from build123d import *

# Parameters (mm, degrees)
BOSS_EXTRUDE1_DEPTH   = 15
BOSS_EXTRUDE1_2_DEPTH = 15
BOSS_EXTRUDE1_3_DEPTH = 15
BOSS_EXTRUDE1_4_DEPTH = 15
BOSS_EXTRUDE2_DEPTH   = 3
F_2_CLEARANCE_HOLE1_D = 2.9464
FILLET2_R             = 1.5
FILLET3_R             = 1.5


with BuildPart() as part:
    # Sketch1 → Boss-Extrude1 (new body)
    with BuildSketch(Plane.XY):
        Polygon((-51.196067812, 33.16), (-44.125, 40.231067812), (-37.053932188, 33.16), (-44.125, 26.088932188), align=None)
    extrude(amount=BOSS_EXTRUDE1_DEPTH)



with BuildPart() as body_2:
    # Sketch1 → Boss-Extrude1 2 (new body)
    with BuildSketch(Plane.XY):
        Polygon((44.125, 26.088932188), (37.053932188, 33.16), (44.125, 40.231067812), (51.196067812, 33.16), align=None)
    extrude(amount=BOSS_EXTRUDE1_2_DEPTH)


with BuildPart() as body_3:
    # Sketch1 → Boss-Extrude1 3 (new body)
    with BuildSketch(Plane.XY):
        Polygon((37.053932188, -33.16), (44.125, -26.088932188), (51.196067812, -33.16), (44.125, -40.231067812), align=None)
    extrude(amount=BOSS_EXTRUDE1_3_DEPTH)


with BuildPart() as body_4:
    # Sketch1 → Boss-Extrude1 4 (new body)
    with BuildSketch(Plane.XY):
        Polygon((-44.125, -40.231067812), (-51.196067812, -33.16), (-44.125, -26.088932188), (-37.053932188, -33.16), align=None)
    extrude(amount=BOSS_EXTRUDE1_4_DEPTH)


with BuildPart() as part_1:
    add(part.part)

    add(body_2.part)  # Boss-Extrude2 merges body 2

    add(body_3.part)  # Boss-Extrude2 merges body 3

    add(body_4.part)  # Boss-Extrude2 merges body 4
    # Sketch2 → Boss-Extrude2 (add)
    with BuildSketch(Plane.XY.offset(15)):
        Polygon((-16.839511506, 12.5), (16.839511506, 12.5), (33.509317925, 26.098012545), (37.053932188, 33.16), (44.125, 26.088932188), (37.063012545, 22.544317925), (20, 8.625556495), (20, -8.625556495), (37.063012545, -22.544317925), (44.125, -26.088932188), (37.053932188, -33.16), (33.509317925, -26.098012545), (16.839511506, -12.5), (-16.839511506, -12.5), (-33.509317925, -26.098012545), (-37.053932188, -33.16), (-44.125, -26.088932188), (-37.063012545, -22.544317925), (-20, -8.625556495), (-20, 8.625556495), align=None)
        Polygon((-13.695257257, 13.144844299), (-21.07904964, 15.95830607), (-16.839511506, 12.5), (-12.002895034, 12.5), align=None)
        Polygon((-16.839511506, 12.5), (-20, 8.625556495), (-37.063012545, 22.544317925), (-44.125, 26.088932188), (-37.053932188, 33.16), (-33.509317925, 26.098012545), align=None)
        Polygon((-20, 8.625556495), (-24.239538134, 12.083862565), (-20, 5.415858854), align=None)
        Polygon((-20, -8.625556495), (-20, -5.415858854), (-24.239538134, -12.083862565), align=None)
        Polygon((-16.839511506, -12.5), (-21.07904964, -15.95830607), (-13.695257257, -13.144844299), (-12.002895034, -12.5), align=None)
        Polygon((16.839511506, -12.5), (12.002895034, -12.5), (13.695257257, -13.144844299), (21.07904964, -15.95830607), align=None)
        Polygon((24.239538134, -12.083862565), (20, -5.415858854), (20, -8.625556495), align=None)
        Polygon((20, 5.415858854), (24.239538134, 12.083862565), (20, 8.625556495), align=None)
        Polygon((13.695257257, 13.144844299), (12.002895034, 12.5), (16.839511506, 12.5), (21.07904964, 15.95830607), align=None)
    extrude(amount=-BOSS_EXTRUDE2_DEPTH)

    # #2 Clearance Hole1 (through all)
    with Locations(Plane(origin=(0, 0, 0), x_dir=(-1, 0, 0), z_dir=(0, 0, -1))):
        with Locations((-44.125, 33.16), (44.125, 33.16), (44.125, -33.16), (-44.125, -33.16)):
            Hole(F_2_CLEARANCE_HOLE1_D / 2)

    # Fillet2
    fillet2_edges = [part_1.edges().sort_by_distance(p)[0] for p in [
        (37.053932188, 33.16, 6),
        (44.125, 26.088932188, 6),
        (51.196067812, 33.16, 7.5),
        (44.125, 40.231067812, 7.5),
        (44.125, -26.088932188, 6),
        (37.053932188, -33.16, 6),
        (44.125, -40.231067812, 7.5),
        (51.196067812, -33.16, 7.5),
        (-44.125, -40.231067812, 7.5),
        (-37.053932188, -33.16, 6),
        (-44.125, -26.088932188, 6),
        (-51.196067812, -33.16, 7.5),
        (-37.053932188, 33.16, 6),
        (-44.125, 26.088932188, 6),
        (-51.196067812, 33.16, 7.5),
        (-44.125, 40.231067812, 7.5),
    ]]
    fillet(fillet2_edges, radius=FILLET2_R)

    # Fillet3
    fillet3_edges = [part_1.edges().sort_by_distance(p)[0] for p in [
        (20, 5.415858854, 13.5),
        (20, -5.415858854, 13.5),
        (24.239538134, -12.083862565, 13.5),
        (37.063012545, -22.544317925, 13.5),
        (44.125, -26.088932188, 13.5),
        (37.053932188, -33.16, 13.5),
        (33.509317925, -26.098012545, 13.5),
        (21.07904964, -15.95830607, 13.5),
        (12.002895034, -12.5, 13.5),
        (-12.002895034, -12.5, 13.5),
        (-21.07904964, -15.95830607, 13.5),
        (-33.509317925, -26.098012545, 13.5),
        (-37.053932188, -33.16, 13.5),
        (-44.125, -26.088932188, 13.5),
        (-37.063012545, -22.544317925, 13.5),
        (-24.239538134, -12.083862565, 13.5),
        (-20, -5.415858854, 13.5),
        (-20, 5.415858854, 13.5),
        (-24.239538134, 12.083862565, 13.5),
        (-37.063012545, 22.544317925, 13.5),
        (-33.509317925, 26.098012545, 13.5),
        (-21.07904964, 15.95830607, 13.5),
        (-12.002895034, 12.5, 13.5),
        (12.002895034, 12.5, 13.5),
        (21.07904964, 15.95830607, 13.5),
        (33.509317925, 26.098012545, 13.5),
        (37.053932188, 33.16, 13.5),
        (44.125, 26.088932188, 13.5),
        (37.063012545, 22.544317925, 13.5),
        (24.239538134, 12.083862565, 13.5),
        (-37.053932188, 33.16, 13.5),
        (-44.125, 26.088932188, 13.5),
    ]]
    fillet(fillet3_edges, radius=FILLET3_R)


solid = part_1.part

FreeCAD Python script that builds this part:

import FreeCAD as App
import Part
import Sketcher

V = App.Vector


def edges_at(feature, points):
    """Names of the edges that pass closest to the given points."""
    edges = feature.Shape.Edges
    near = lambda p: min(range(len(edges)), key=lambda i: edges[i].distToShape(Part.Vertex(*p))[0])
    return sorted({f"Edge{near(p) + 1}" for p in points})

doc = App.newDocument("Part")
body = doc.addObject("PartDesign::Body", "Body")

# Sketch on XY plane
sketch1 = doc.addObject("Sketcher::SketchObject", "Sketch")
body.addObject(sketch1)
sketch1.AttachmentSupport = (doc.XY_Plane, [""])
sketch1.MapMode = "FlatFace"
sketch1.addGeometry([
    Part.LineSegment(V(-44, 40, 0), V(-51, 33, 0)),
    Part.LineSegment(V(-51, 33, 0), V(-44, 26, 0)),
    Part.LineSegment(V(-44, 26, 0), V(-37, 33, 0)),
    Part.LineSegment(V(-37, 33, 0), V(-44, 40, 0)),
], False)
sketch1.addConstraint([
    Sketcher.Constraint("Coincident", 0, 2, 1, 1),
    Sketcher.Constraint("Coincident", 1, 2, 2, 1),
    Sketcher.Constraint("Coincident", 2, 2, 3, 1),
    Sketcher.Constraint("Coincident", 3, 2, 0, 1),
    Sketcher.Constraint("Perpendicular", 0, 1),
    Sketcher.Constraint("Perpendicular", 1, 2),
    Sketcher.Constraint("Perpendicular", 2, 3),
    Sketcher.Constraint("Horizontal", 0, 2, 2, 2),
    Sketcher.Constraint("Vertical", 1, 2, 3, 2),
    Sketcher.Constraint("Distance", 0, 10.0),
    Sketcher.Constraint("DistanceY", -1, 1, 0, 2, 33.16),
    Sketcher.Constraint("DistanceX", 1, 2, -1, 1, 44.125),
])
pad1 = doc.addObject("PartDesign::Pad", "Pad")
body.addObject(pad1)
pad1.Profile = sketch1
pad1.Length = 15
body2 = doc.addObject("PartDesign::Body", "Body001")

# Sketch on XY plane
sketch2 = doc.addObject("Sketcher::SketchObject", "Sketch001")
body2.addObject(sketch2)
sketch2.AttachmentSupport = (doc.getObject("XY_Plane001"), [""])
sketch2.MapMode = "FlatFace"
sketch2.addGeometry([
    Part.LineSegment(V(37, 33, 0), V(44, 26, 0)),
    Part.LineSegment(V(44, 26, 0), V(51, 33, 0)),
    Part.LineSegment(V(51, 33, 0), V(44, 40, 0)),
    Part.LineSegment(V(44, 40, 0), V(37, 33, 0)),
], False)
sketch2.addConstraint([
    Sketcher.Constraint("Coincident", 0, 2, 1, 1),
    Sketcher.Constraint("Coincident", 1, 2, 2, 1),
    Sketcher.Constraint("Coincident", 2, 2, 3, 1),
    Sketcher.Constraint("Coincident", 3, 2, 0, 1),
    Sketcher.Constraint("Perpendicular", 0, 1),
    Sketcher.Constraint("Perpendicular", 1, 2),
    Sketcher.Constraint("Perpendicular", 2, 3),
    Sketcher.Constraint("Horizontal", 1, 2, 3, 2),
    Sketcher.Constraint("Vertical", 0, 2, 2, 2),
    Sketcher.Constraint("Distance", 0, 10.0),
    Sketcher.Constraint("DistanceY", -1, 1, 1, 2, 33.16),
    Sketcher.Constraint("DistanceX", -1, 1, 0, 2, 44.125),
])
pad2 = doc.addObject("PartDesign::Pad", "Pad001")
body2.addObject(pad2)
pad2.Profile = sketch2
pad2.Length = 15
body3 = doc.addObject("PartDesign::Body", "Body002")

# Sketch on XY plane
sketch3 = doc.addObject("Sketcher::SketchObject", "Sketch002")
body3.addObject(sketch3)
sketch3.AttachmentSupport = (doc.getObject("XY_Plane002"), [""])
sketch3.MapMode = "FlatFace"
sketch3.addGeometry([
    Part.LineSegment(V(44, -26, 0), V(37, -33, 0)),
    Part.LineSegment(V(37, -33, 0), V(44, -40, 0)),
    Part.LineSegment(V(44, -40, 0), V(51, -33, 0)),
    Part.LineSegment(V(51, -33, 0), V(44, -26, 0)),
], False)
sketch3.addConstraint([
    Sketcher.Constraint("Coincident", 0, 2, 1, 1),
    Sketcher.Constraint("Coincident", 1, 2, 2, 1),
    Sketcher.Constraint("Coincident", 2, 2, 3, 1),
    Sketcher.Constraint("Coincident", 3, 2, 0, 1),
    Sketcher.Constraint("Perpendicular", 0, 1),
    Sketcher.Constraint("Perpendicular", 1, 2),
    Sketcher.Constraint("Perpendicular", 2, 3),
    Sketcher.Constraint("Horizontal", 0, 2, 2, 2),
    Sketcher.Constraint("Vertical", 1, 2, 3, 2),
    Sketcher.Constraint("Distance", 0, 10.0),
    Sketcher.Constraint("DistanceY", 0, 2, -1, 1, 33.16),
    Sketcher.Constraint("DistanceX", -1, 1, 1, 2, 44.125),
])
pad3 = doc.addObject("PartDesign::Pad", "Pad002")
body3.addObject(pad3)
pad3.Profile = sketch3
pad3.Length = 15
body4 = doc.addObject("PartDesign::Body", "Body003")

# Sketch on XY plane
sketch4 = doc.addObject("Sketcher::SketchObject", "Sketch003")
body4.addObject(sketch4)
sketch4.AttachmentSupport = (doc.getObject("XY_Plane003"), [""])
sketch4.MapMode = "FlatFace"
sketch4.addGeometry([
    Part.LineSegment(V(-51, -33, 0), V(-44, -40, 0)),
    Part.LineSegment(V(-44, -40, 0), V(-37, -33, 0)),
    Part.LineSegment(V(-37, -33, 0), V(-44, -26, 0)),
    Part.LineSegment(V(-44, -26, 0), V(-51, -33, 0)),
], False)
sketch4.addConstraint([
    Sketcher.Constraint("Coincident", 0, 2, 1, 1),
    Sketcher.Constraint("Coincident", 1, 2, 2, 1),
    Sketcher.Constraint("Coincident", 2, 2, 3, 1),
    Sketcher.Constraint("Coincident", 3, 2, 0, 1),
    Sketcher.Constraint("Perpendicular", 0, 1),
    Sketcher.Constraint("Perpendicular", 1, 2),
    Sketcher.Constraint("Perpendicular", 2, 3),
    Sketcher.Constraint("Horizontal", 1, 2, 3, 2),
    Sketcher.Constraint("Vertical", 0, 2, 2, 2),
    Sketcher.Constraint("Distance", 0, 10.0),
    Sketcher.Constraint("DistanceY", 1, 2, -1, 1, 33.16),
    Sketcher.Constraint("DistanceX", 0, 2, -1, 1, 44.125),
])
pad4 = doc.addObject("PartDesign::Pad", "Pad003")
body4.addObject(pad4)
pad4.Profile = sketch4
pad4.Length = 15
body.AllowCompound = True
doc.recompute()

boolean = doc.addObject("PartDesign::Boolean", "Boolean")
body.addObject(boolean)
boolean.Type = "Fuse"
boolean.addObjects([body2])
doc.recompute()

boolean2 = doc.addObject("PartDesign::Boolean", "Boolean001")
body.addObject(boolean2)
boolean2.Type = "Fuse"
boolean2.addObjects([body3])
doc.recompute()

boolean3 = doc.addObject("PartDesign::Boolean", "Boolean002")
body.addObject(boolean3)
boolean3.Type = "Fuse"
boolean3.addObjects([body4])

# Sketch on XY plane
sketch5 = doc.addObject("Sketcher::SketchObject", "Sketch004")
body.addObject(sketch5)
sketch5.AttachmentSupport = (doc.XY_Plane, [""])
sketch5.MapMode = "FlatFace"
sketch5.AttachmentOffset = App.Placement(V(0, 0, 15), App.Rotation())
sketch5.addGeometry([
    Part.LineSegment(V(12, 12.5, 0), V(-12, 12.5, 0)),  # 0
    Part.LineSegment(V(-12, 12.5, 0), V(-13.7, 13.1, 0)),  # 1
    Part.LineSegment(V(-13.7, 13.1, 0), V(-21.1, 16, 0)),  # 2
    Part.LineSegment(V(-21.1, 16, 0), V(-33.5, 26.1, 0)),  # 3
    Part.LineSegment(V(-33.5, 26.1, 0), V(-37.1, 33.2, 0)),  # 4
    Part.LineSegment(V(-37.1, 33.2, 0), V(-44.1, 26.1, 0)),  # 5
    Part.LineSegment(V(-44.1, 26.1, 0), V(-37.1, 22.5, 0)),  # 6
    Part.LineSegment(V(-37.1, 22.5, 0), V(-24.2, 12.1, 0)),  # 7
    Part.LineSegment(V(-24.2, 12.1, 0), V(-20, 5.4, 0)),  # 8
    Part.LineSegment(V(-20, 5.4, 0), V(-20, -5.4, 0)),  # 9
    Part.LineSegment(V(-20, -5.4, 0), V(-24.2, -12.1, 0)),  # 10
    Part.LineSegment(V(-24.2, -12.1, 0), V(-37.1, -22.5, 0)),  # 11
    Part.LineSegment(V(-37.1, -22.5, 0), V(-44.1, -26.1, 0)),  # 12
    Part.LineSegment(V(-44.1, -26.1, 0), V(-37.1, -33.2, 0)),  # 13
    Part.LineSegment(V(-37.1, -33.2, 0), V(-33.5, -26.1, 0)),  # 14
    Part.LineSegment(V(-33.5, -26.1, 0), V(-21.1, -16, 0)),  # 15
    Part.LineSegment(V(-21.1, -16, 0), V(-13.7, -13.1, 0)),  # 16
    Part.LineSegment(V(-13.7, -13.1, 0), V(-12, -12.5, 0)),  # 17
    Part.LineSegment(V(-12, -12.5, 0), V(12, -12.5, 0)),  # 18
    Part.LineSegment(V(12, -12.5, 0), V(13.7, -13.1, 0)),  # 19
    Part.LineSegment(V(13.7, -13.1, 0), V(21.1, -16, 0)),  # 20
    Part.LineSegment(V(21.1, -16, 0), V(33.5, -26.1, 0)),  # 21
    Part.LineSegment(V(33.5, -26.1, 0), V(37.1, -33.2, 0)),  # 22
    Part.LineSegment(V(37.1, -33.2, 0), V(44.1, -26.1, 0)),  # 23
    Part.LineSegment(V(44.1, -26.1, 0), V(37.1, -22.5, 0)),  # 24
    Part.LineSegment(V(37.1, -22.5, 0), V(24.2, -12.1, 0)),  # 25
    Part.LineSegment(V(24.2, -12.1, 0), V(20, -5.4, 0)),  # 26
    Part.LineSegment(V(20, -5.4, 0), V(20, 5.4, 0)),  # 27
    Part.LineSegment(V(20, 5.4, 0), V(24.2, 12.1, 0)),  # 28
    Part.LineSegment(V(24.2, 12.1, 0), V(37.1, 22.5, 0)),  # 29
    Part.LineSegment(V(37.1, 22.5, 0), V(44.1, 26.1, 0)),  # 30
    Part.LineSegment(V(44.1, 26.1, 0), V(37.1, 33.2, 0)),  # 31
    Part.LineSegment(V(37.1, 33.2, 0), V(33.5, 26.1, 0)),  # 32
    Part.LineSegment(V(33.5, 26.1, 0), V(21.1, 16, 0)),  # 33
    Part.LineSegment(V(21.1, 16, 0), V(13.7, 13.1, 0)),  # 34
    Part.LineSegment(V(13.7, 13.1, 0), V(12, 12.5, 0)),  # 35
], False)
sketch5.addConstraint([
    Sketcher.Constraint("Coincident", 0, 2, 1, 1),
    Sketcher.Constraint("Coincident", 1, 2, 2, 1),
    Sketcher.Constraint("Coincident", 2, 2, 3, 1),
    Sketcher.Constraint("Coincident", 3, 2, 4, 1),
    Sketcher.Constraint("Coincident", 4, 2, 5, 1),
    Sketcher.Constraint("Coincident", 5, 2, 6, 1),
    Sketcher.Constraint("Coincident", 6, 2, 7, 1),
    Sketcher.Constraint("Coincident", 7, 2, 8, 1),
    Sketcher.Constraint("Coincident", 8, 2, 9, 1),
    Sketcher.Constraint("Coincident", 9, 2, 10, 1),
    Sketcher.Constraint("Coincident", 10, 2, 11, 1),
    Sketcher.Constraint("Coincident", 11, 2, 12, 1),
    Sketcher.Constraint("Coincident", 12, 2, 13, 1),
    Sketcher.Constraint("Coincident", 13, 2, 14, 1),
    Sketcher.Constraint("Coincident", 14, 2, 15, 1),
    Sketcher.Constraint("Coincident", 15, 2, 16, 1),
    Sketcher.Constraint("Coincident", 16, 2, 17, 1),
    Sketcher.Constraint("Coincident", 17, 2, 18, 1),
    Sketcher.Constraint("Coincident", 18, 2, 19, 1),
    Sketcher.Constraint("Coincident", 19, 2, 20, 1),
    Sketcher.Constraint("Coincident", 20, 2, 21, 1),
    Sketcher.Constraint("Coincident", 21, 2, 22, 1),
    Sketcher.Constraint("Coincident", 22, 2, 23, 1),
    Sketcher.Constraint("Coincident", 23, 2, 24, 1),
    Sketcher.Constraint("Coincident", 24, 2, 25, 1),
    Sketcher.Constraint("Coincident", 25, 2, 26, 1),
    Sketcher.Constraint("Coincident", 26, 2, 27, 1),
    Sketcher.Constraint("Coincident", 27, 2, 28, 1),
    Sketcher.Constraint("Coincident", 28, 2, 29, 1),
    Sketcher.Constraint("Coincident", 29, 2, 30, 1),
    Sketcher.Constraint("Coincident", 30, 2, 31, 1),
    Sketcher.Constraint("Coincident", 31, 2, 32, 1),
    Sketcher.Constraint("Coincident", 32, 2, 33, 1),
    Sketcher.Constraint("Coincident", 33, 2, 34, 1),
    Sketcher.Constraint("Coincident", 34, 2, 35, 1),
    Sketcher.Constraint("Coincident", 35, 2, 0, 1),
    Sketcher.Constraint("Horizontal", 0),
    Sketcher.Constraint("Vertical", 9),
    Sketcher.Constraint("Horizontal", 18),
    Sketcher.Constraint("Vertical", 27),
    Sketcher.Constraint("Symmetric", 0, 2, 18, 2, -1, 1),
    Sketcher.Constraint("Symmetric", 1, 2, 19, 2, -1, 1),
    Sketcher.Constraint("Symmetric", 2, 2, 20, 2, -1, 1),
    Sketcher.Constraint("Symmetric", 3, 2, 21, 2, -1, 1),
    Sketcher.Constraint("Symmetric", 4, 2, 22, 2, -1, 1),
    Sketcher.Constraint("Symmetric", 5, 2, 23, 2, -1, 1),
    Sketcher.Constraint("Symmetric", 6, 2, 24, 2, -1, 1),
    Sketcher.Constraint("Symmetric", 7, 2, 25, 2, -1, 1),
    Sketcher.Constraint("Symmetric", 8, 2, 26, 2, -1, 1),
    Sketcher.Constraint("Symmetric", 10, 2, 28, 2, -1, 1),
    Sketcher.Constraint("Symmetric", 11, 2, 29, 2, -1, 1),
    Sketcher.Constraint("Symmetric", 12, 2, 30, 2, -1, 1),
    Sketcher.Constraint("Symmetric", 13, 2, 31, 2, -1, 1),
    Sketcher.Constraint("Symmetric", 14, 2, 32, 2, -1, 1),
    Sketcher.Constraint("Symmetric", 15, 2, 33, 2, -1, 1),
    Sketcher.Constraint("Symmetric", 16, 2, 34, 2, -1, 1),
    Sketcher.Constraint("Symmetric", 16, 2, 19, 2, -2),
    Sketcher.Constraint("Symmetric", 15, 2, 20, 2, -2),
    Sketcher.Constraint("Symmetric", 14, 2, 21, 2, -2),
    Sketcher.Constraint("Symmetric", 13, 2, 22, 2, -2),
    Sketcher.Constraint("Symmetric", 12, 2, 23, 2, -2),
    Sketcher.Constraint("Symmetric", 11, 2, 24, 2, -2),
    Sketcher.Constraint("Symmetric", 10, 2, 25, 2, -2),
    Sketcher.Constraint("Parallel", 1, 2),
    Sketcher.Constraint("Parallel", 3, 7),
    Sketcher.Constraint("Perpendicular", 4, 12),
    Sketcher.Constraint("Perpendicular", 5, 13),
    Sketcher.Constraint("Parallel", 16, 17),
    Sketcher.Constraint("Parallel", 10, 28),
    Sketcher.Constraint("Parallel", 34, 35),
    Sketcher.Constraint("Horizontal", 9, 2, 26, 2),
    Sketcher.Constraint("Equal", 2, 4),
    Sketcher.Constraint("Equal", 4, 6),
    Sketcher.Constraint("Equal", 6, 8),
    Sketcher.Constraint("Distance", 5, 10.0),
    Sketcher.Constraint("DistanceX", 8, 2, -1, 1, 20.0),
    Sketcher.Constraint("DistanceY", 18, 2, 0, 2, 25.0),
    Sketcher.Constraint("DistanceY", -1, 1, 4, 2, 33.16),
    Sketcher.Constraint("DistanceX", 5, 2, -1, 1, 44.125),
    Sketcher.Constraint("DistanceX", 0, 2, 0, 1, 24.00579),
    Sketcher.Constraint("DistanceX", 15, 2, 20, 2, 42.158099),
    Sketcher.Constraint("Distance", 3, 16.04136),
    Sketcher.Constraint("DistanceY", 9, 2, 9, 1, 10.831718),
    Sketcher.Constraint("DistanceX", 7, 2, -1, 1, 24.239538),
    Sketcher.Constraint("DistanceY", 1, 2, 2, 2, 2.813462),
])
pad5 = doc.addObject("PartDesign::Pad", "Pad004")
body.addObject(pad5)
pad5.Profile = sketch5
pad5.Length = 3
pad5.Reversed = True

# Sketch on XY plane
sketch6 = doc.addObject("Sketcher::SketchObject", "Sketch005")
body.addObject(sketch6)
sketch6.AttachmentSupport = (doc.XY_Plane, [""])
sketch6.MapMode = "FlatFace"
sketch6.addGeometry([
    Part.Circle(V(44.1, 33.2, 0), V(0, 0, 1), 1.5),
    Part.Circle(V(-44.1, 33.2, 0), V(0, 0, 1), 1.5),
    Part.Circle(V(-44.1, -33.2, 0), V(0, 0, 1), 1.5),
    Part.Circle(V(44.1, -33.2, 0), V(0, 0, 1), 1.5),
], False)
sketch6.addConstraint([
    Sketcher.Constraint("Equal", 0, 1),
    Sketcher.Constraint("Equal", 1, 2),
    Sketcher.Constraint("Equal", 2, 3),
    Sketcher.Constraint("Symmetric", 0, 3, 2, 3, -1, 1),
    Sketcher.Constraint("Symmetric", 1, 3, 3, 3, -1, 1),
    Sketcher.Constraint("Symmetric", 0, 3, 1, 3, -2),
    Sketcher.Constraint("Diameter", 0, 2.9464),
    Sketcher.Constraint("DistanceY", -1, 1, 0, 3, 33.16),
    Sketcher.Constraint("DistanceX", 1, 3, 0, 3, 88.25),
])
doc.recompute()
hole = doc.addObject("PartDesign::Hole", "Hole")
body.addObject(hole)
hole.Profile = sketch6
hole.ThreadType = "None"
hole.Diameter = 2.9464
hole.DepthType = "ThroughAll"
hole.Reversed = True
doc.recompute()

fillet = doc.addObject("PartDesign::Fillet", "Fillet")
body.addObject(fillet)
fillet.Base = (hole, edges_at(hole, [
    (37.054, 33.16, 6),
    (44.125, 26.089, 6),
    (51.196, 33.16, 7.5),
    (44.125, 40.231, 7.5),
    (44.125, -26.089, 6),
    (37.054, -33.16, 6),
    (44.125, -40.231, 7.5),
    (51.196, -33.16, 7.5),
    (-44.125, -40.231, 7.5),
    (-37.054, -33.16, 6),
    (-44.125, -26.089, 6),
    (-51.196, -33.16, 7.5),
    (-37.054, 33.16, 6),
    (-44.125, 26.089, 6),
    (-51.196, 33.16, 7.5),
    (-44.125, 40.231, 7.5),
]))
fillet.Radius = 1.5
doc.recompute()

fillet2 = doc.addObject("PartDesign::Fillet", "Fillet001")
body.addObject(fillet2)
fillet2.Base = (fillet, edges_at(fillet, [
    (20, 5.416, 13.5),
    (20, -5.416, 13.5),
    (24.24, -12.084, 13.5),
    (37.063, -22.544, 13.5),
    (44.125, -26.089, 13.5),
    (37.054, -33.16, 13.5),
    (33.509, -26.098, 13.5),
    (21.079, -15.958, 13.5),
    (12.003, -12.5, 13.5),
    (-12.003, -12.5, 13.5),
    (-21.079, -15.958, 13.5),
    (-33.509, -26.098, 13.5),
    (-37.054, -33.16, 13.5),
    (-44.125, -26.089, 13.5),
    (-37.063, -22.544, 13.5),
    (-24.24, -12.084, 13.5),
    (-20, -5.416, 13.5),
    (-20, 5.416, 13.5),
    (-24.24, 12.084, 13.5),
    (-37.063, 22.544, 13.5),
    (-33.509, 26.098, 13.5),
    (-21.079, 15.958, 13.5),
    (-12.003, 12.5, 13.5),
    (12.003, 12.5, 13.5),
    (21.079, 15.958, 13.5),
    (33.509, 26.098, 13.5),
    (37.054, 33.16, 13.5),
    (44.125, 26.089, 13.5),
    (37.063, 22.544, 13.5),
    (24.24, 12.084, 13.5),
    (-37.054, 33.16, 13.5),
    (-44.125, 26.089, 13.5),
]))
fillet2.Radius = 1.5

doc.recompute()
